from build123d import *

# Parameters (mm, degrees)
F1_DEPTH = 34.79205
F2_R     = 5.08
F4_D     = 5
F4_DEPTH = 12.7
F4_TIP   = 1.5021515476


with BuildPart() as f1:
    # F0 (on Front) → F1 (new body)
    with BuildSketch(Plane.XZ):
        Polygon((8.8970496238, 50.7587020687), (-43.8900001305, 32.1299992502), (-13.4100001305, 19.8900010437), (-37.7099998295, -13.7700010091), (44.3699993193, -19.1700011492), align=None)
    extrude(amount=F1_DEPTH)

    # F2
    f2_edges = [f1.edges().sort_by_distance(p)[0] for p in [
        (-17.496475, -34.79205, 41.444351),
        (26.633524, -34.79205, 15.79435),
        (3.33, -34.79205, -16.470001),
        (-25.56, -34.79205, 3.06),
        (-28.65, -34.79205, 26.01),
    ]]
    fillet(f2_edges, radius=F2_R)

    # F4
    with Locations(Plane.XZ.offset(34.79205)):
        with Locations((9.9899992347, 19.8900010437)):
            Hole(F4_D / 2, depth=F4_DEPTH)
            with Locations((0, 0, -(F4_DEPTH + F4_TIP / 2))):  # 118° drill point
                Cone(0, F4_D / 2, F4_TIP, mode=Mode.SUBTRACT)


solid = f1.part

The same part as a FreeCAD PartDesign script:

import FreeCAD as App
import Part
import Sketcher

V = App.Vector
Q = App.Units.Quantity


def edges_at(feature, points):
    """Names of the edges that pass closest to the given points."""
    edges = feature.Shape.Edges
    near = lambda p: min(range(len(edges)), key=lambda i: edges[i].distToShape(Part.Vertex(*p))[0])
    return sorted({f"Edge{near(p) + 1}" for p in points})

doc = App.newDocument("Part")
params = doc.addObject("Spreadsheet::Sheet", "Params")
for row, (alias, value) in enumerate([
    ("pad1_length", "34.79205 mm"),
    ("fillet_radius", "0.2 in"),
    ("hole_diameter", "5 mm"),
    ("hole_depth", "0.5 in"),
], start=1):
    params.set(f"A{row}", alias)
    params.set(f"B{row}", "=" + value)
    params.setAlias(f"B{row}", alias)

body = doc.addObject("PartDesign::Body", "Body")

# Sketch on XZ plane
sketch1 = body.newObject("Sketcher::SketchObject", "Sketch")
sketch1.AttachmentSupport = (doc.getObject("XZ_Plane"), [""])
sketch1.MapMode = "FlatFace"
sketch1.addGeometry([
    Part.LineSegment(V(8.89705, 50.758702, 0), V(-43.89, 32.129999, 0)),  # 0
    Part.LineSegment(V(-43.89, 32.129999, 0), V(-13.41, 19.890001, 0)),  # 1
    Part.LineSegment(V(-13.41, 19.890001, 0), V(-37.71, -13.770001, 0)),  # 2
    Part.LineSegment(V(-37.71, -13.770001, 0), V(44.369999, -19.170001, 0)),  # 3
    Part.LineSegment(V(44.369999, -19.170001, 0), V(8.89705, 50.758702, 0)),  # 4
], False)
sketch1.addConstraint([
    Sketcher.Constraint("Coincident", 0, 2, 1, 1),
    Sketcher.Constraint("Coincident", 1, 2, 2, 1),
    Sketcher.Constraint("Coincident", 2, 2, 3, 1),
    Sketcher.Constraint("Coincident", 3, 2, 4, 1),
    Sketcher.Constraint("Coincident", 4, 2, 0, 1),
    Sketcher.Constraint("DistanceX", 0, 2, 1, 2, Q("1.2 in")),
    Sketcher.Constraint("DistanceY", 2, 2, 4, 2, Q("2.5405001 in")),
    Sketcher.Constraint("DistanceX", 0, 2, -1, 1, 43.89),
    Sketcher.Constraint("DistanceY", -1, 1, 0, 2, 32.129999),
    Sketcher.Constraint("DistanceY", -1, 1, 1, 2, 19.890001),
    Sketcher.Constraint("DistanceX", 2, 2, -1, 1, 37.71),
    Sketcher.Constraint("DistanceY", 2, 2, -1, 1, 13.770001),
    Sketcher.Constraint("DistanceX", -1, 1, 3, 2, 44.369999),
    Sketcher.Constraint("DistanceY", 3, 2, -1, 1, 19.170001),
    Sketcher.Constraint("Distance", 4, 78.411439),
])
pad1 = body.newObject("PartDesign::Pad", "Pad")
pad1.Profile = sketch1
pad1.setExpression("Length", "Params.pad1_length")
doc.recompute()

fillet = body.newObject("PartDesign::Fillet", "Fillet")
fillet.Base = (pad1, edges_at(pad1, [
    (-17.496, -34.792, 41.444),
    (26.634, -34.792, 15.794),
    (3.33, -34.792, -16.47),
    (-25.56, -34.792, 3.06),
    (-28.65, -34.792, 26.01),
]))
fillet.setExpression("Radius", "Params.fillet_radius")

# Sketch on XZ plane
sketch2 = body.newObject("Sketcher::SketchObject", "Sketch001")
sketch2.AttachmentSupport = (doc.getObject("XZ_Plane"), [""])
sketch2.MapMode = "FlatFace"
sketch2.AttachmentOffset = App.Placement(V(0, 0, 34.79205), App.Rotation())
sketch2.addGeometry(Part.Circle(V(9.989999, 19.890001, 0), V(0, 0, 1), 2.5), False)
sketch2.addConstraint([
    Sketcher.Constraint("Diameter", 0, 5.0),
    Sketcher.Constraint("DistanceX", -1, 1, 0, 3, 9.989999),
    Sketcher.Constraint("DistanceY", -1, 1, 0, 3, 19.890001),
])
doc.recompute()
hole = body.newObject("PartDesign::Hole", "Hole")
hole.Profile = sketch2
hole.ThreadType = "None"
hole.setExpression("Diameter", "Params.hole_diameter")
hole.DepthType = "Dimension"
hole.setExpression("Depth", "Params.hole_depth")
hole.DrillPoint = "Angled"
hole.DrillPointAngle = 118

doc.recompute()
